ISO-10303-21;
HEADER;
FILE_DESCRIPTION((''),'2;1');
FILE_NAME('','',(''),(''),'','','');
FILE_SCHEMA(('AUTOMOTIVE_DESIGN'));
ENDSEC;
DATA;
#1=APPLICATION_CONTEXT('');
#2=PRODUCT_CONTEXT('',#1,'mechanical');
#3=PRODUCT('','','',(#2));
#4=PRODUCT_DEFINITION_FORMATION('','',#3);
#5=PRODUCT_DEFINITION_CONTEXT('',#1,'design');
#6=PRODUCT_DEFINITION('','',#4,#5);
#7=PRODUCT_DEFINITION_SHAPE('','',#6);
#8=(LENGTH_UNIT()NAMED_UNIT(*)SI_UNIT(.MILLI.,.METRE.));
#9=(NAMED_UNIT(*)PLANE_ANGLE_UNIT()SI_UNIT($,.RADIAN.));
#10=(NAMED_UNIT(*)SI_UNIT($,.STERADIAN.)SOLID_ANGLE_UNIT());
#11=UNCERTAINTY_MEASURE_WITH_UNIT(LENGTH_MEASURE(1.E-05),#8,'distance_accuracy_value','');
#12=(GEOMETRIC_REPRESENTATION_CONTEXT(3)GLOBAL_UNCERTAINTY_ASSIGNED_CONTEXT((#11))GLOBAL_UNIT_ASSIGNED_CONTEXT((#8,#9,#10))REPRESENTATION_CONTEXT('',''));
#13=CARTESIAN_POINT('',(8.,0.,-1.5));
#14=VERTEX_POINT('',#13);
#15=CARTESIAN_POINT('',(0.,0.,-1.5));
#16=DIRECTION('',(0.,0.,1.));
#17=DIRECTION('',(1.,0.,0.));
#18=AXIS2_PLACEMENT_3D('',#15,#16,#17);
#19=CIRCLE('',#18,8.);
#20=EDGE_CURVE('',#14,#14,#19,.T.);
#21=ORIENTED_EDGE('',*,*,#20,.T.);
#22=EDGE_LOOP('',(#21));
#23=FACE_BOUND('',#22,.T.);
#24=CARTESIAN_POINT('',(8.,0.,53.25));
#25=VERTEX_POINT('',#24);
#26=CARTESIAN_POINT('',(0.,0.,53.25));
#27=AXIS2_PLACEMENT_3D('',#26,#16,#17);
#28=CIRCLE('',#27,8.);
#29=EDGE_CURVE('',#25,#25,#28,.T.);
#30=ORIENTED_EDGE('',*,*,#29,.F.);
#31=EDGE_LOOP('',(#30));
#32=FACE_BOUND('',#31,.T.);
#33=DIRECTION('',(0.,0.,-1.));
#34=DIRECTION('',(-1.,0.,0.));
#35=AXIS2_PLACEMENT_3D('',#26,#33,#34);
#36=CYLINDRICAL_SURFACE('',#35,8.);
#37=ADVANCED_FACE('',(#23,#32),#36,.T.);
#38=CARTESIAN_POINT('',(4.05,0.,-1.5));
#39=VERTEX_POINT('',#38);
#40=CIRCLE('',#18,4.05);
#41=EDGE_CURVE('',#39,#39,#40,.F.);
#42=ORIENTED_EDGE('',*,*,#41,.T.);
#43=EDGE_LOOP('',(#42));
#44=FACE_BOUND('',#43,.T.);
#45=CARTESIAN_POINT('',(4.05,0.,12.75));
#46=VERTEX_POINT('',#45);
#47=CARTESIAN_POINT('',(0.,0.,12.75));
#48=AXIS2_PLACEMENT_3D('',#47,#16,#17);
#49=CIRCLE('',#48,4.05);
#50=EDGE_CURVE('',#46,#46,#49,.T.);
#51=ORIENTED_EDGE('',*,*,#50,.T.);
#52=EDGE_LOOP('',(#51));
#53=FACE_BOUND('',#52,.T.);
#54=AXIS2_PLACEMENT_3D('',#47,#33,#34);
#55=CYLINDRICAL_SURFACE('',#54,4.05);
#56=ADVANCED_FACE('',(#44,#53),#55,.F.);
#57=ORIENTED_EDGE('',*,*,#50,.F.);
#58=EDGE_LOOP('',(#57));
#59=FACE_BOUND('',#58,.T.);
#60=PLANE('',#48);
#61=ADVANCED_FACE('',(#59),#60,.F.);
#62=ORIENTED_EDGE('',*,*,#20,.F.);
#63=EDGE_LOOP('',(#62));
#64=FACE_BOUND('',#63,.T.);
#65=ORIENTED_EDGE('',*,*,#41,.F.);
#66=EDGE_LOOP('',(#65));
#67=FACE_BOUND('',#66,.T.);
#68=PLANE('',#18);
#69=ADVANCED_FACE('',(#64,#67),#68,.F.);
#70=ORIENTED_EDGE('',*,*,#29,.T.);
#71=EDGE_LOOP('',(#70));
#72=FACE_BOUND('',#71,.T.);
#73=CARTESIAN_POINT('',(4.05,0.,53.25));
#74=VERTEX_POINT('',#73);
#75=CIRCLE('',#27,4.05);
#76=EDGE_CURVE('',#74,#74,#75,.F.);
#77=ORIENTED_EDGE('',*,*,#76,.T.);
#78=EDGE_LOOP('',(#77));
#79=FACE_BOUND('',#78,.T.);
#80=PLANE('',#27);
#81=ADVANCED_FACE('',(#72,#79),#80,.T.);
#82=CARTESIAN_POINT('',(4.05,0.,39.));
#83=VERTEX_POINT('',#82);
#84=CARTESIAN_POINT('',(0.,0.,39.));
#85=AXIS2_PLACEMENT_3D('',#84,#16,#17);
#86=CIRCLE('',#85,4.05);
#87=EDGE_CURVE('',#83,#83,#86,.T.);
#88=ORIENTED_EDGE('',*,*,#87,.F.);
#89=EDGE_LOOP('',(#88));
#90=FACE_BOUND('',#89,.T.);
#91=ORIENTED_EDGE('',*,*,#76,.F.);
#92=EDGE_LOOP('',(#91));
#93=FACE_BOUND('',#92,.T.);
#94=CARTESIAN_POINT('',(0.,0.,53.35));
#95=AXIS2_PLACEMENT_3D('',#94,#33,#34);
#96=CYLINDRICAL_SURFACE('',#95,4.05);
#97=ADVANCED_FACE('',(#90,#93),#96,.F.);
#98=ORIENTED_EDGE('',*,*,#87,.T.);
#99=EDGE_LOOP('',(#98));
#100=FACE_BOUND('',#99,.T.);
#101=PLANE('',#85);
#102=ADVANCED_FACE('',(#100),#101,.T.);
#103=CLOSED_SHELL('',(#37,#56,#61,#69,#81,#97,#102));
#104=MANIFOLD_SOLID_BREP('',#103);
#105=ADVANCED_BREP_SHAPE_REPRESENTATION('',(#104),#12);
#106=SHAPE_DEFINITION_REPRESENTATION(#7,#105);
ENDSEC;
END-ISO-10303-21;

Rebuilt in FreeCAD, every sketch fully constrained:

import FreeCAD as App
import Part
import Sketcher

V = App.Vector

doc = App.newDocument("Part")
params = doc.addObject("Spreadsheet::Sheet", "Params")
for row, (alias, value) in enumerate([
    ("sketch1_diameter", "16 mm"),
    ("pad1_length", "54.75 mm"),
    ("sketch2_diameter", "8.1 mm"),
    ("pocket1_length", "14.35 mm"),
    ("sketch3_diameter", "8.1 mm"),
    ("pocket2_length", "14.35 mm"),
], start=1):
    params.set(f"A{row}", alias)
    params.set(f"B{row}", "=" + value)
    params.setAlias(f"B{row}", alias)

body = doc.addObject("PartDesign::Body", "Body")

# Sketch on XY plane
sketch1 = body.newObject("Sketcher::SketchObject", "Sketch")
sketch1.AttachmentSupport = (doc.getObject("XY_Plane"), [""])
sketch1.MapMode = "FlatFace"
sketch1.AttachmentOffset = App.Placement(V(0, 0, -1.5), App.Rotation())
sketch1.addGeometry(Part.Circle(V(0, 0, 0), V(0, 0, 1), 8), False)
sketch1.addConstraint([
    Sketcher.Constraint("Coincident", 0, 3, -1, 1),
    Sketcher.Constraint("Diameter", 0, 16.0),
])
sketch1.setExpression("Constraints[1]", "Params.sketch1_diameter")
pad1 = body.newObject("PartDesign::Pad", "Pad")
pad1.Profile = sketch1
pad1.setExpression("Length", "Params.pad1_length")

# Sketch on XY plane
sketch2 = body.newObject("Sketcher::SketchObject", "Sketch001")
sketch2.AttachmentSupport = (doc.getObject("XY_Plane"), [""])
sketch2.MapMode = "FlatFace"
sketch2.AttachmentOffset = App.Placement(V(0, 0, -1.6), App.Rotation())
sketch2.addGeometry(Part.Circle(V(0, 0, 0), V(0, 0, 1), 4), False)
sketch2.addConstraint([
    Sketcher.Constraint("Coincident", 0, 3, -1, 1),
    Sketcher.Constraint("Diameter", 0, 8.1),
])
sketch2.setExpression("Constraints[1]", "Params.sketch2_diameter")
pocket1 = body.newObject("PartDesign::Pocket", "Pocket")
pocket1.Profile = sketch2
pocket1.setExpression("Length", "Params.pocket1_length")
pocket1.Reversed = True

# Sketch on XY plane
sketch3 = body.newObject("Sketcher::SketchObject", "Sketch002")
sketch3.AttachmentSupport = (doc.getObject("XY_Plane"), [""])
sketch3.MapMode = "FlatFace"
sketch3.AttachmentOffset = App.Placement(V(0, 0, 39), App.Rotation())
sketch3.addGeometry(Part.Circle(V(0, 0, 0), V(0, 0, 1), 4), False)
sketch3.addConstraint([
    Sketcher.Constraint("Coincident", 0, 3, -1, 1),
    Sketcher.Constraint("Diameter", 0, 8.1),
])
sketch3.setExpression("Constraints[1]", "Params.sketch3_diameter")
pocket2 = body.newObject("PartDesign::Pocket", "Pocket001")
pocket2.Profile = sketch3
pocket2.setExpression("Length", "Params.pocket2_length")
pocket2.Reversed = True

doc.recompute()
